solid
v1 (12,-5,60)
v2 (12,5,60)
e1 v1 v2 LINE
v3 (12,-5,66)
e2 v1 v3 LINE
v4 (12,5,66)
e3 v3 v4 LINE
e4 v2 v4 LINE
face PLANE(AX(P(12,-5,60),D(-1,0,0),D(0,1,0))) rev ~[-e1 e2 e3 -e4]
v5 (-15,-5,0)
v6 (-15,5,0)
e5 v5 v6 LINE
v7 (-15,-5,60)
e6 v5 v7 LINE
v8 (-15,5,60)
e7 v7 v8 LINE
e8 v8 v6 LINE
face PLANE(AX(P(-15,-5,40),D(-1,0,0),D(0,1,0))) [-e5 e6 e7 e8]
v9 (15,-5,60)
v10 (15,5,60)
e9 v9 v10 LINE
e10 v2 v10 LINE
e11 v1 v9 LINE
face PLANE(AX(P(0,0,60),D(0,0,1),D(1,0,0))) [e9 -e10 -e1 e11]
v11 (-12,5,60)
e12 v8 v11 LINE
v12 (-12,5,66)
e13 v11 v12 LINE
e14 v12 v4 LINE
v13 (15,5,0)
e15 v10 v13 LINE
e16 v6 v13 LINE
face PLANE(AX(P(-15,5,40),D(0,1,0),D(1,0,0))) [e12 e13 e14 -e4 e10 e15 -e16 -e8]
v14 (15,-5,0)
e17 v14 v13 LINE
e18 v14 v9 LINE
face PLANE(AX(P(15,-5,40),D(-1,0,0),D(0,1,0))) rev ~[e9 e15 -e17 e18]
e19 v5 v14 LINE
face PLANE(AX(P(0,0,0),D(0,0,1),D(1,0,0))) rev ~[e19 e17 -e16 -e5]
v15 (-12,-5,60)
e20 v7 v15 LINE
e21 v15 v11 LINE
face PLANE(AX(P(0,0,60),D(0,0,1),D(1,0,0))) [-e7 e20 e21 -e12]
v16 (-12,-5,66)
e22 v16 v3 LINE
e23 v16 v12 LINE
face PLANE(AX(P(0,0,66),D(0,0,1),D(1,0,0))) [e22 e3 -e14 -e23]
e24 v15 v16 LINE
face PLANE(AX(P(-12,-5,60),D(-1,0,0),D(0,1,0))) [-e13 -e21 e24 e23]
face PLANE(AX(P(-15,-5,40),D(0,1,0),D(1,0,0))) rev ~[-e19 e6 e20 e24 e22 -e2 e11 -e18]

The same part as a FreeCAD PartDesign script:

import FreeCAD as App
import Part
import Sketcher
Q = App.Units.Quantity

doc = App.newDocument("Part")
body = doc.addObject("PartDesign::Body", "Body")

# Sketch on XY plane
sketch1 = body.newObject("Sketcher::SketchObject", "Sketch")
sketch1.AttachmentSupport = (doc.getObject("XY_Plane"), [""])
sketch1.MapMode = "FlatFace"
sketch1.addGeometry([
    Part.LineSegment(App.Vector(-15, 5, 0), App.Vector(-15, -5, 0)),
    Part.LineSegment(App.Vector(-15, -5, 0), App.Vector(15, -5, 0)),
    Part.LineSegment(App.Vector(15, -5, 0), App.Vector(15, 5, 0)),
    Part.LineSegment(App.Vector(15, 5, 0), App.Vector(-15, 5, 0)),
], False)
sketch1.addConstraint([
    Sketcher.Constraint("Coincident", 0, 2, 1, 1),
    Sketcher.Constraint("Coincident", 1, 2, 2, 1),
    Sketcher.Constraint("Coincident", 2, 2, 3, 1),
    Sketcher.Constraint("Coincident", 3, 2, 0, 1),
    Sketcher.Constraint("Vertical", 0),
    Sketcher.Constraint("Horizontal", 1),
    Sketcher.Constraint("Vertical", 2),
    Sketcher.Constraint("Horizontal", 3),
    Sketcher.Constraint("Symmetric", 0, 2, 2, 2, -1, 1),
    Sketcher.Constraint("DistanceX", 1, 1, 1, 2, Q("30 mm")),
    Sketcher.Constraint("DistanceY", 0, 2, 0, 1, Q("10 mm")),
])
pad1 = body.newObject("PartDesign::Pad", "Pad")
pad1.Profile = sketch1
pad1.Length = 40

# Sketch on XY plane
sketch2 = body.newObject("Sketcher::SketchObject", "Sketch001")
sketch2.AttachmentSupport = (doc.getObject("XY_Plane"), [""])
sketch2.MapMode = "FlatFace"
sketch2.AttachmentOffset = App.Placement(App.Vector(0, 0, 40), App.Rotation())
sketch2.addGeometry([
    Part.LineSegment(App.Vector(-15, 5, 0), App.Vector(-15, -5, 0)),
    Part.LineSegment(App.Vector(-15, -5, 0), App.Vector(15, -5, 0)),
    Part.LineSegment(App.Vector(15, -5, 0), App.Vector(15, 5, 0)),
    Part.LineSegment(App.Vector(15, 5, 0), App.Vector(-15, 5, 0)),
], False)
sketch2.addConstraint([
    Sketcher.Constraint("Coincident", 0, 2, 1, 1),
    Sketcher.Constraint("Coincident", 1, 2, 2, 1),
    Sketcher.Constraint("Coincident", 2, 2, 3, 1),
    Sketcher.Constraint("Coincident", 3, 2, 0, 1),
    Sketcher.Constraint("Vertical", 0),
    Sketcher.Constraint("Horizontal", 1),
    Sketcher.Constraint("Vertical", 2),
    Sketcher.Constraint("Horizontal", 3),
    Sketcher.Constraint("Symmetric", 0, 2, 2, 2, -1, 1),
    Sketcher.Constraint("DistanceX", 1, 1, 1, 2, Q("30 mm")),
    Sketcher.Constraint("DistanceY", 0, 2, 0, 1, Q("10 mm")),
])
pad2 = body.newObject("PartDesign::Pad", "Pad001")
pad2.Profile = sketch2
pad2.Length = 20

# Sketch on XY plane
sketch3 = body.newObject("Sketcher::SketchObject", "Sketch002")
sketch3.AttachmentSupport = (doc.getObject("XY_Plane"), [""])
sketch3.MapMode = "FlatFace"
sketch3.AttachmentOffset = App.Placement(App.Vector(0, 0, 60), App.Rotation())
sketch3.addGeometry([
    Part.LineSegment(App.Vector(-12, 5, 0), App.Vector(-12, -5, 0)),
    Part.LineSegment(App.Vector(-12, -5, 0), App.Vector(12, -5, 0)),
    Part.LineSegment(App.Vector(12, -5, 0), App.Vector(12, 5, 0)),
    Part.LineSegment(App.Vector(12, 5, 0), App.Vector(-12, 5, 0)),
], False)
sketch3.addConstraint([
    Sketcher.Constraint("Coincident", 0, 2, 1, 1),
    Sketcher.Constraint("Coincident", 1, 2, 2, 1),
    Sketcher.Constraint("Coincident", 2, 2, 3, 1),
    Sketcher.Constraint("Coincident", 3, 2, 0, 1),
    Sketcher.Constraint("Vertical", 0),
    Sketcher.Constraint("Horizontal", 1),
    Sketcher.Constraint("Vertical", 2),
    Sketcher.Constraint("Horizontal", 3),
    Sketcher.Constraint("Symmetric", 0, 2, 2, 2, -1, 1),
    Sketcher.Constraint("DistanceX", 1, 1, 1, 2, Q("24 mm")),
    Sketcher.Constraint("DistanceY", 0, 2, 0, 1, Q("10 mm")),
])
pad3 = body.newObject("PartDesign::Pad", "Pad002")
pad3.Profile = sketch3
pad3.Length = 6

doc.recompute()
